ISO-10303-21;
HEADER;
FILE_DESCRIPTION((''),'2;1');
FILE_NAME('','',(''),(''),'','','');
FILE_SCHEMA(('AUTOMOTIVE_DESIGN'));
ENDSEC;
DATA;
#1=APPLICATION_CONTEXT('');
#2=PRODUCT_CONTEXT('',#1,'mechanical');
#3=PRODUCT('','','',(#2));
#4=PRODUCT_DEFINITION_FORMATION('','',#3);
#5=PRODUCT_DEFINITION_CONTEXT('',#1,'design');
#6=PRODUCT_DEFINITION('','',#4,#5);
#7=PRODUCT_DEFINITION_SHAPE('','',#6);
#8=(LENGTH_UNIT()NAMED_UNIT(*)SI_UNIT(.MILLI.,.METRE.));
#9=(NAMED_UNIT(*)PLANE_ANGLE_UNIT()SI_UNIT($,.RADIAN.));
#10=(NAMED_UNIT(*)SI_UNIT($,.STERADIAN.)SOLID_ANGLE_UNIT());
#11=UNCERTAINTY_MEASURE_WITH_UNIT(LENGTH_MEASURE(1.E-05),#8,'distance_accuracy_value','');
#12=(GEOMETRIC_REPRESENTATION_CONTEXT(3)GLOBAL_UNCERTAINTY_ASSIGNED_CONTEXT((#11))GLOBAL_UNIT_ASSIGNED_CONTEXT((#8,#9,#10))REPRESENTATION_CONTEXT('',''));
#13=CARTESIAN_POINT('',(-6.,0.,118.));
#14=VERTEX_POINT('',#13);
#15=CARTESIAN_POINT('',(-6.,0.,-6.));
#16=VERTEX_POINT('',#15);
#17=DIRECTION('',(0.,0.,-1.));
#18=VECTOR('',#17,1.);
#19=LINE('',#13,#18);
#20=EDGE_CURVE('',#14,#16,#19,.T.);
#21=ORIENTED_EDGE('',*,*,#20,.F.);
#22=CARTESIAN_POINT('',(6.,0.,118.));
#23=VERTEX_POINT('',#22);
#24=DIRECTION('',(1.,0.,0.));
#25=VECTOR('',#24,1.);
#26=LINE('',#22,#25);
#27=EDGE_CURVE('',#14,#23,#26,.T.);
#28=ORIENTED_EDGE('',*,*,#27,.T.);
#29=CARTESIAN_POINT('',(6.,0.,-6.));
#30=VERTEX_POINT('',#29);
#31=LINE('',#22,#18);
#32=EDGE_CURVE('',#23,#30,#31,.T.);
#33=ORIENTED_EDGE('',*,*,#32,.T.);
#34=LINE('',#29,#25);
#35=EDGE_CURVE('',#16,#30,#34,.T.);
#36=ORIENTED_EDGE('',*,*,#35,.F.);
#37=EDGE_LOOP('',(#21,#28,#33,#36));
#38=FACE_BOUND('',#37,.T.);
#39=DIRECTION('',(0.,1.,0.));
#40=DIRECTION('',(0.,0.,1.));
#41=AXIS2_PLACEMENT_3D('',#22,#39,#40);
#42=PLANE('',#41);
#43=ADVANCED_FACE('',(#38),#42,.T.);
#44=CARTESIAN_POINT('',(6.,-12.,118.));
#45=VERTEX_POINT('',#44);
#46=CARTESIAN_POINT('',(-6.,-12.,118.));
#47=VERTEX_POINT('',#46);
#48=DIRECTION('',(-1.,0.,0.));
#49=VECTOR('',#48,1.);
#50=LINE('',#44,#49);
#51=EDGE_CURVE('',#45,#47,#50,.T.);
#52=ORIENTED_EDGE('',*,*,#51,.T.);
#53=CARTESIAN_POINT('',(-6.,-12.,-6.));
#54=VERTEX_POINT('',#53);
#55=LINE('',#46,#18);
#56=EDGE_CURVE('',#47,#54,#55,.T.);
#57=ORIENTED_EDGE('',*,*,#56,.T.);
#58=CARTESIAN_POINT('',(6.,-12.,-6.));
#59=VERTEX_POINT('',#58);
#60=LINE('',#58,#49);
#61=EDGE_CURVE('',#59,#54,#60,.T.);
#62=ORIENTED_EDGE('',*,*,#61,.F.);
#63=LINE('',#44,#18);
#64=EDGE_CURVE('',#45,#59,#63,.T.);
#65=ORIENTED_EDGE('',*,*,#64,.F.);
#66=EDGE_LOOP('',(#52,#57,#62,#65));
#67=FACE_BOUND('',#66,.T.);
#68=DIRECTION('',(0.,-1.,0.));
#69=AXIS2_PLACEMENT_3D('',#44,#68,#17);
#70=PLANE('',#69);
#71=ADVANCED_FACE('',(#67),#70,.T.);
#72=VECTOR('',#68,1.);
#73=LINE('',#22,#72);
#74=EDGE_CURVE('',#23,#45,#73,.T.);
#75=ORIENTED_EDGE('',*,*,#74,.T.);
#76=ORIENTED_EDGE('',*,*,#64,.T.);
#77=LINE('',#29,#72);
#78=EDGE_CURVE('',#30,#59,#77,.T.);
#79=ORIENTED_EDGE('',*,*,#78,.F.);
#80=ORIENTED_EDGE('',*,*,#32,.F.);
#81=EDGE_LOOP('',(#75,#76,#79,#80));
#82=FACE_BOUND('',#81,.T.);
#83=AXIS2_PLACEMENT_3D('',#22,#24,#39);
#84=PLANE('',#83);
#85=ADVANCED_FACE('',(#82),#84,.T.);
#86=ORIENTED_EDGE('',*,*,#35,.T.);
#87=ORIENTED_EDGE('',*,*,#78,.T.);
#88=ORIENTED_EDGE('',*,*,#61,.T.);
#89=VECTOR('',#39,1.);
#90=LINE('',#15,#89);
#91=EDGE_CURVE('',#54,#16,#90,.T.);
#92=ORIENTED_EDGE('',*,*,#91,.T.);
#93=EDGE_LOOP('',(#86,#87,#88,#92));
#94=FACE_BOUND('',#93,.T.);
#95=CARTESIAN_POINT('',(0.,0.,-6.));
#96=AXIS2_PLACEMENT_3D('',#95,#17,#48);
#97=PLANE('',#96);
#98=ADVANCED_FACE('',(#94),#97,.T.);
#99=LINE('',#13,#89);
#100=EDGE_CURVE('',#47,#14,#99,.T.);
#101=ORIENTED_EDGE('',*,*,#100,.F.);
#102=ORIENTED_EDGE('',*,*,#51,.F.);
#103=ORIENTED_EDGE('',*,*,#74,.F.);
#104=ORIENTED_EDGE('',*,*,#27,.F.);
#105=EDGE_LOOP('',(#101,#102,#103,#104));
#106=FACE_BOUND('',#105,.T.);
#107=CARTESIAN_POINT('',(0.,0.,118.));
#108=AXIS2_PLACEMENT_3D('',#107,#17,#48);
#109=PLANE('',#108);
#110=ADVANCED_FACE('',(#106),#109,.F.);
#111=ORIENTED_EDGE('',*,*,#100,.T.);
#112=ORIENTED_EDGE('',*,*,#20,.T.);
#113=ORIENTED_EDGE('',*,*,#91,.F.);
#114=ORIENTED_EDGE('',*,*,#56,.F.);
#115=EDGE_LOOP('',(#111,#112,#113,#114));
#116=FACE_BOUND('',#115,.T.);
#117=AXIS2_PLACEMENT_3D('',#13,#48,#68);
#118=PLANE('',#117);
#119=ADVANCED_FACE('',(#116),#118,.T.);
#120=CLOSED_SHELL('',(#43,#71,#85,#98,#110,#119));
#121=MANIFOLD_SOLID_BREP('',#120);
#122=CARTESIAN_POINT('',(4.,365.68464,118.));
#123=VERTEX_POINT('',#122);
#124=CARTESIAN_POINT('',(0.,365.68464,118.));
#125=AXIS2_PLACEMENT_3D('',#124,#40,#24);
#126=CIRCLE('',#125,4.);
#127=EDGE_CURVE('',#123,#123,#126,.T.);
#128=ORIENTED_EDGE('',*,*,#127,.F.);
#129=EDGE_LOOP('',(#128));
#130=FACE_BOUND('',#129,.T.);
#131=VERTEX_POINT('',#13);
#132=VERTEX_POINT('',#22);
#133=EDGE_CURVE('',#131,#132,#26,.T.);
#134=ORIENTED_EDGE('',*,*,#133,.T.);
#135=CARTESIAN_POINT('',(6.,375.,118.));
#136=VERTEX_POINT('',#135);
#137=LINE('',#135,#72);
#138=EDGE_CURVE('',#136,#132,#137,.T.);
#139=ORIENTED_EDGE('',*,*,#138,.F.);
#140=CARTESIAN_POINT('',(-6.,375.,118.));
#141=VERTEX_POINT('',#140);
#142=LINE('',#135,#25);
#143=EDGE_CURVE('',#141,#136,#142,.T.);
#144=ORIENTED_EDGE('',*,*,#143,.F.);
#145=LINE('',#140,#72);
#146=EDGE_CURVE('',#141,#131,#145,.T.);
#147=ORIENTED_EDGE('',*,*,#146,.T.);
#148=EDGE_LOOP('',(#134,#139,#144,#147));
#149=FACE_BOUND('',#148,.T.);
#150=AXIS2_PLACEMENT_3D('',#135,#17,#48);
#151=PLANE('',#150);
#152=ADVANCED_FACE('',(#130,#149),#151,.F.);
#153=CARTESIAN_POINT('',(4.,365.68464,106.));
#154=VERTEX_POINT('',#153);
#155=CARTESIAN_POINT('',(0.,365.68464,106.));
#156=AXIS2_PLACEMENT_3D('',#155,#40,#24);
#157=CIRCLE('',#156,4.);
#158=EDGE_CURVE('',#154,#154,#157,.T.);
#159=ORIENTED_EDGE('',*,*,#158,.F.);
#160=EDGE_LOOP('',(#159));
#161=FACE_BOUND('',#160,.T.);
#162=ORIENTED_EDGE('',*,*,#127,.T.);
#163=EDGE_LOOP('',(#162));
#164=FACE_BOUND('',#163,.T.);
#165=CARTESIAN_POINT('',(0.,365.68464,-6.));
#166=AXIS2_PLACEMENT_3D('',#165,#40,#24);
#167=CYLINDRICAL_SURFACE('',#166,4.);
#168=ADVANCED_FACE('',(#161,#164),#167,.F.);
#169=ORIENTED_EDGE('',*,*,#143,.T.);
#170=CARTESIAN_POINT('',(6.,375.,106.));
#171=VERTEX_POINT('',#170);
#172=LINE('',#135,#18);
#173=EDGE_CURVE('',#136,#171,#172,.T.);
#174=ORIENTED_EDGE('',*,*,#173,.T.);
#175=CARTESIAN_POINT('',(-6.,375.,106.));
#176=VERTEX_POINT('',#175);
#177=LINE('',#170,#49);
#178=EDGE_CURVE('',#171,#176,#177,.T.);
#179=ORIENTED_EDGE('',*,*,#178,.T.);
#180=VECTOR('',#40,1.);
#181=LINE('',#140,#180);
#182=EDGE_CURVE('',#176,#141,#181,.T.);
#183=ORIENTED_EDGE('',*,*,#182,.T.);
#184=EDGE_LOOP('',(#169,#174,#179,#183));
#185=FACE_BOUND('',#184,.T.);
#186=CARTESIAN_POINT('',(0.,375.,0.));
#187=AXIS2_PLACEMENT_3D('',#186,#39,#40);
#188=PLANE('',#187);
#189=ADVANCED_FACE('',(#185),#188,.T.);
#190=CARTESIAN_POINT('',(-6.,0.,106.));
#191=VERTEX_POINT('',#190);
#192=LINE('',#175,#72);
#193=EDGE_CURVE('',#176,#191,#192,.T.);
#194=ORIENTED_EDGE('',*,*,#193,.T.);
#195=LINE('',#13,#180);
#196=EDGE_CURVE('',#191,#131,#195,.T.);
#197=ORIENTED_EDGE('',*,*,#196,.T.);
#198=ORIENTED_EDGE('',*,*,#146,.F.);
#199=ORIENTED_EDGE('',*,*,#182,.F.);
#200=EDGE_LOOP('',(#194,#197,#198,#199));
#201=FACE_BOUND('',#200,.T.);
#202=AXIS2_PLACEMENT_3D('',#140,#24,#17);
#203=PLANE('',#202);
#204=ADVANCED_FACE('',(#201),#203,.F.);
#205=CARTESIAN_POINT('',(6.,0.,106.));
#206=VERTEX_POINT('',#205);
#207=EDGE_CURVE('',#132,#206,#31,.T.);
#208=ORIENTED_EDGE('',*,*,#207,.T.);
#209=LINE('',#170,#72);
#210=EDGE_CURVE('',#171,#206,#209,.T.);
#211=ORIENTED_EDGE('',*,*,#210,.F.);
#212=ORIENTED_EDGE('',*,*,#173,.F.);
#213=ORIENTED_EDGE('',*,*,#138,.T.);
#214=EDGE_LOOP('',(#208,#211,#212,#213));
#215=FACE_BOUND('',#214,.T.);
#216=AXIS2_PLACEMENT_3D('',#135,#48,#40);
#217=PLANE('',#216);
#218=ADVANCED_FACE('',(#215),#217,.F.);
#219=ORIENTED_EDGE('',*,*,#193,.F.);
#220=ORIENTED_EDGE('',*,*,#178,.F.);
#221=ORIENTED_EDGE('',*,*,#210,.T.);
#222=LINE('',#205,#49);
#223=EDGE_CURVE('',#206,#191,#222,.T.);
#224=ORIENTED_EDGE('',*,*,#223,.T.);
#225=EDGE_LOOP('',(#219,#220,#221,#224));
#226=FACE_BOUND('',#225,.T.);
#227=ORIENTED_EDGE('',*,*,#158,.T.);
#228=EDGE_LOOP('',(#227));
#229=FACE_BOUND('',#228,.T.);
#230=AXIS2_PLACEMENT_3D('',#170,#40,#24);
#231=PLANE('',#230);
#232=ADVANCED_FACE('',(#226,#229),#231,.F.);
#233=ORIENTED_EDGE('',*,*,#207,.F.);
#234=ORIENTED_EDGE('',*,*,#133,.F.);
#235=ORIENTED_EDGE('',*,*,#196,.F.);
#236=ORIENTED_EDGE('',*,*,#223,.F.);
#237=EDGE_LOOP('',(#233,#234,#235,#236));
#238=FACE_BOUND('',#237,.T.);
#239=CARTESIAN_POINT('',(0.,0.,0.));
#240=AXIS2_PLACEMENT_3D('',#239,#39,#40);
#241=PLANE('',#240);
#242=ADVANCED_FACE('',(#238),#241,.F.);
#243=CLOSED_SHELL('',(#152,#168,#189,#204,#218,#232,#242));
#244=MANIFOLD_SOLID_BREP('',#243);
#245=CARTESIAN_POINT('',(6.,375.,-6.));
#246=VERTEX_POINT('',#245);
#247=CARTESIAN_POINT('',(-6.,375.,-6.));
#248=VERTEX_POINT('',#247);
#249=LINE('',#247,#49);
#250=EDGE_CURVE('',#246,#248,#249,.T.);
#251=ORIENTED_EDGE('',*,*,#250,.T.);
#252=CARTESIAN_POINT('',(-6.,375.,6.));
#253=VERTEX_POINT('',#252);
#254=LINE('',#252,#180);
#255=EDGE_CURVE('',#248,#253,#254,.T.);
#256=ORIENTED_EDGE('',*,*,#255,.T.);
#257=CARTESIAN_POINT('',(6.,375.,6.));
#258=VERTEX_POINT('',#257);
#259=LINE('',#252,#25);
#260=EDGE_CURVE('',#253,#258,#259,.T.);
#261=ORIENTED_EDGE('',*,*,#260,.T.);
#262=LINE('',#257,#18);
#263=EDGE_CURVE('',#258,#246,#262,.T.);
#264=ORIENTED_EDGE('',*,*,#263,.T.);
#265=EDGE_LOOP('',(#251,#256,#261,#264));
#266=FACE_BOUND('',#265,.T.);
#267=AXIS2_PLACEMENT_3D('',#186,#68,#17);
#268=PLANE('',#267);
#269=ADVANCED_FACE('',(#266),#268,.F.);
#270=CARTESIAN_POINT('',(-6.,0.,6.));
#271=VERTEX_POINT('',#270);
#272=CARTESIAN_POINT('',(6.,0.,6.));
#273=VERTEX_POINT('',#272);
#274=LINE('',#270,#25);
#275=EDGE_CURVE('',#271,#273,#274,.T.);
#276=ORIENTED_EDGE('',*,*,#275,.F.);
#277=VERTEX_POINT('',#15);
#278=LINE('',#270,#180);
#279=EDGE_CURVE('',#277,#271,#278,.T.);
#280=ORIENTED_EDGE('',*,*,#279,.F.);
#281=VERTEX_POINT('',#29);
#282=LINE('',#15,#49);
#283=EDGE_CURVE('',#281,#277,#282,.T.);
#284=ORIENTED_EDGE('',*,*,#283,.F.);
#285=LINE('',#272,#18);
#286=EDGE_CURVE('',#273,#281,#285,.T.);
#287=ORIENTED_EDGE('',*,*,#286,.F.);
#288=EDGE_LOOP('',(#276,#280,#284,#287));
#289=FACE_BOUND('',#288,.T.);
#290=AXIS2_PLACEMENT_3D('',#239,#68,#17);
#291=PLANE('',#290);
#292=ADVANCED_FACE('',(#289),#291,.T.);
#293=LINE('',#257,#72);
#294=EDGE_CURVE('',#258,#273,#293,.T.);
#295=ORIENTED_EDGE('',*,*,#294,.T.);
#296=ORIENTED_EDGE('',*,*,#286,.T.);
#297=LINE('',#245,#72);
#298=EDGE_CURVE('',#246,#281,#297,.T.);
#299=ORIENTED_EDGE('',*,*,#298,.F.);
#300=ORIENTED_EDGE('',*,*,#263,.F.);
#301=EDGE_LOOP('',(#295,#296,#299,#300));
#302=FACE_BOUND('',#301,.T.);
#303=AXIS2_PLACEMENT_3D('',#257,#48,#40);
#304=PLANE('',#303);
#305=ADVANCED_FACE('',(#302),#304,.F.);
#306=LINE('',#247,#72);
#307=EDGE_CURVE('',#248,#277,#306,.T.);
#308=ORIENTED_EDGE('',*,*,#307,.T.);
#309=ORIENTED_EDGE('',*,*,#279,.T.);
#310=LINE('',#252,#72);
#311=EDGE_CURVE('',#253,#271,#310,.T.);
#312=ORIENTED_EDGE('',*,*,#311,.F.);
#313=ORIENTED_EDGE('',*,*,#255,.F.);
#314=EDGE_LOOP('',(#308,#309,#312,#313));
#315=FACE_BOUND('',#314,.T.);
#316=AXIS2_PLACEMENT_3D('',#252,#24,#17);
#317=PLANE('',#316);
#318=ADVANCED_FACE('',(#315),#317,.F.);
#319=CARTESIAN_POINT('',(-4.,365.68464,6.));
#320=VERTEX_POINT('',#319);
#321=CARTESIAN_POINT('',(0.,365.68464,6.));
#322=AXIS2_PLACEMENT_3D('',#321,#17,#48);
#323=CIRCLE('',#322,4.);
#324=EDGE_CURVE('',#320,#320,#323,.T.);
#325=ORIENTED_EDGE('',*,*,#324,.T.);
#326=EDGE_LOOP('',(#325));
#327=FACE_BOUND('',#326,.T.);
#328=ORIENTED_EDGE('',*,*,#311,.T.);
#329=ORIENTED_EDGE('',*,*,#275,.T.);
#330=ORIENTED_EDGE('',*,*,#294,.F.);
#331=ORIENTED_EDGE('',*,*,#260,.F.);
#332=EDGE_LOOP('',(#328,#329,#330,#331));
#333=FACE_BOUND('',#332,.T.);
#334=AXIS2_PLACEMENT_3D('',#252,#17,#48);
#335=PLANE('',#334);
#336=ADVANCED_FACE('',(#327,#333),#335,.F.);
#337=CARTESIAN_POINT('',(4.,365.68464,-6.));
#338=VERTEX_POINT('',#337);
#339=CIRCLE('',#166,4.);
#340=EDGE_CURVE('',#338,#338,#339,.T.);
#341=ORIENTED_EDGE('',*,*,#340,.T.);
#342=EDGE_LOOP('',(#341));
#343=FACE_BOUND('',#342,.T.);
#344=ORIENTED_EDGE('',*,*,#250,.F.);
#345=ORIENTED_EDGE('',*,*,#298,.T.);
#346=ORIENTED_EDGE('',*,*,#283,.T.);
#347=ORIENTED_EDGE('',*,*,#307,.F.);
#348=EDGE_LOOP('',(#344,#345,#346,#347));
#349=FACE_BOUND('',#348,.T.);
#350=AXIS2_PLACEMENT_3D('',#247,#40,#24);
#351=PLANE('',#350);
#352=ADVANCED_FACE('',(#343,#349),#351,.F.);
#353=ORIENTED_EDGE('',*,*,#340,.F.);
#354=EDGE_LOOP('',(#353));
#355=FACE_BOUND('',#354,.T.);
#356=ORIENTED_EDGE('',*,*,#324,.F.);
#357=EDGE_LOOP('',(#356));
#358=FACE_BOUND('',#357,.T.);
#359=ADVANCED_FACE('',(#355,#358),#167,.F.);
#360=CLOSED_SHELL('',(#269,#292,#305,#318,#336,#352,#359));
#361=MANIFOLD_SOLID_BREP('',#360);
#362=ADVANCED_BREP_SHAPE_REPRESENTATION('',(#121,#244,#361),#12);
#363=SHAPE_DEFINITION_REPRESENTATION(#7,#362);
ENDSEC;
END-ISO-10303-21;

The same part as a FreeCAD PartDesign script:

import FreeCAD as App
import Part
import Sketcher

doc = App.newDocument("Part")
body = doc.addObject("PartDesign::Body", "Body")

# Sketch on XZ plane
sketch1 = body.newObject("Sketcher::SketchObject", "Sketch")
sketch1.AttachmentSupport = (doc.getObject("XZ_Plane"), [""])
sketch1.MapMode = "FlatFace"
sketch1.addGeometry([
    Part.LineSegment(App.Vector(-6, -6, 0), App.Vector(-6, 6, 0)),
    Part.LineSegment(App.Vector(-6, 6, 0), App.Vector(6, 6, 0)),
    Part.LineSegment(App.Vector(6, 6, 0), App.Vector(6, -6, 0)),
    Part.LineSegment(App.Vector(6, -6, 0), App.Vector(-6, -6, 0)),
], False)
sketch1.addConstraint([
    Sketcher.Constraint("Coincident", 0, 2, 1, 1),
    Sketcher.Constraint("Coincident", 1, 2, 2, 1),
    Sketcher.Constraint("Coincident", 2, 2, 3, 1),
    Sketcher.Constraint("Coincident", 3, 2, 0, 1),
    Sketcher.Constraint("Vertical", 0),
    Sketcher.Constraint("Horizontal", 1),
    Sketcher.Constraint("Vertical", 2),
    Sketcher.Constraint("Horizontal", 3),
    Sketcher.Constraint("Symmetric", 0, 2, 2, 2, -1, 1),
    Sketcher.Constraint("Equal", 3, 0),
    Sketcher.Constraint("DistanceX", 1, 1, 1, 2, 12.0),
])
pad1 = body.newObject("PartDesign::Pad", "Pad")
pad1.Profile = sketch1
pad1.Length = 375
pad1.Reversed = True
body2 = doc.addObject("PartDesign::Body", "Body001")

# Sketch on XY plane
sketch2 = body2.newObject("Sketcher::SketchObject", "Sketch001")
sketch2.AttachmentSupport = (doc.getObject("XY_Plane001"), [""])
sketch2.MapMode = "FlatFace"
sketch2.AttachmentOffset = App.Placement(App.Vector(0, 0, -6), App.Rotation())
sketch2.addGeometry([
    Part.LineSegment(App.Vector(6, 0, 0), App.Vector(6, -12, 0)),
    Part.LineSegment(App.Vector(6, -12, 0), App.Vector(-6, -12, 0)),
    Part.LineSegment(App.Vector(-6, -12, 0), App.Vector(-6, 0, 0)),
    Part.LineSegment(App.Vector(-6, 0, 0), App.Vector(6, 0, 0)),
], False)
sketch2.addConstraint([
    Sketcher.Constraint("Coincident", 0, 2, 1, 1),
    Sketcher.Constraint("Coincident", 1, 2, 2, 1),
    Sketcher.Constraint("Coincident", 2, 2, 3, 1),
    Sketcher.Constraint("Coincident", 3, 2, 0, 1),
    Sketcher.Constraint("Vertical", 0),
    Sketcher.Constraint("Horizontal", 1),
    Sketcher.Constraint("Vertical", 2),
    Sketcher.Constraint("Horizontal", 3),
    Sketcher.Constraint("Symmetric", 2, 2, 3, 2, -1, 1),
    Sketcher.Constraint("Equal", 3, 0),
    Sketcher.Constraint("DistanceX", 1, 2, 1, 1, 12.0),
])
pad2 = body2.newObject("PartDesign::Pad", "Pad001")
pad2.Profile = sketch2
pad2.Length = 124
body3 = doc.addObject("PartDesign::Body", "Body002")

# Sketch on XZ plane
sketch3 = body3.newObject("Sketcher::SketchObject", "Sketch002")
sketch3.AttachmentSupport = (doc.getObject("XZ_Plane002"), [""])
sketch3.MapMode = "FlatFace"
sketch3.addGeometry([
    Part.LineSegment(App.Vector(-6, 106, 0), App.Vector(-6, 118, 0)),
    Part.LineSegment(App.Vector(-6, 118, 0), App.Vector(6, 118, 0)),
    Part.LineSegment(App.Vector(6, 118, 0), App.Vector(6, 106, 0)),
    Part.LineSegment(App.Vector(6, 106, 0), App.Vector(-6, 106, 0)),
], False)
sketch3.addConstraint([
    Sketcher.Constraint("Coincident", 0, 2, 1, 1),
    Sketcher.Constraint("Coincident", 1, 2, 2, 1),
    Sketcher.Constraint("Coincident", 2, 2, 3, 1),
    Sketcher.Constraint("Coincident", 3, 2, 0, 1),
    Sketcher.Constraint("Vertical", 0),
    Sketcher.Constraint("Horizontal", 1),
    Sketcher.Constraint("Vertical", 2),
    Sketcher.Constraint("Horizontal", 3),
    Sketcher.Constraint("Equal", 3, 0),
    Sketcher.Constraint("DistanceX", 1, 1, 1, 2, 12.0),
    Sketcher.Constraint("DistanceX", 0, 2, -1, 1, 6.0),
    Sketcher.Constraint("DistanceY", -1, 1, 0, 2, 118.0),
])
pad3 = body3.newObject("PartDesign::Pad", "Pad002")
pad3.Profile = sketch3
pad3.Length = 375
pad3.Reversed = True
body4 = doc.addObject("PartDesign::Body", "Body003")

# Sketch on XY plane
sketch4 = body4.newObject("Sketcher::SketchObject", "Sketch003")
sketch4.AttachmentSupport = (doc.getObject("XY_Plane003"), [""])
sketch4.MapMode = "FlatFace"
sketch4.AttachmentOffset = App.Placement(App.Vector(0, 0, 6), App.Rotation())
sketch4.addGeometry(Part.Circle(App.Vector(0, 365.7, 0), App.Vector(0, 0, 1), 4), False)
sketch4.addConstraint([
    Sketcher.Constraint("PointOnObject", 0, 3, -2),
    Sketcher.Constraint("Diameter", 0, 8.0),
    Sketcher.Constraint("DistanceY", -1, 1, 0, 3, 365.68464),
])
pad4 = body4.newObject("PartDesign::Pad", "Pad003")
pad4.Profile = sketch4
pad4.Type = "TwoLengths"
pad4.Length = 392.414103
pad4.Length2 = 392.414103
doc.recompute()

body5 = doc.addObject("PartDesign::Body", "Body004")
body5.BaseFeature = body4
boolean = body.newObject("PartDesign::Boolean", "Boolean")
boolean.Type = "Cut"
boolean.addObjects([body5])
doc.recompute()

boolean2 = body3.newObject("PartDesign::Boolean", "Boolean001")
boolean2.Type = "Cut"
boolean2.addObjects([body4])

doc.recompute()
